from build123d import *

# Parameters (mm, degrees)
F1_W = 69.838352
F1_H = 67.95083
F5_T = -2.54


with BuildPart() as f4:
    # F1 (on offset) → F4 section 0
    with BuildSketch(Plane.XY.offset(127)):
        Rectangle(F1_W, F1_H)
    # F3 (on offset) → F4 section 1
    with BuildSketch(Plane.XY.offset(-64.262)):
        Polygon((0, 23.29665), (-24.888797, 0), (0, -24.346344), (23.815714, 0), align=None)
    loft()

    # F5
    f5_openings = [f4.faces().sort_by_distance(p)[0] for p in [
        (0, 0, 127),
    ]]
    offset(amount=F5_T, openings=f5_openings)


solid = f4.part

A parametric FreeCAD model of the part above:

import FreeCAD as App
import Part
import Sketcher
from FreeCAD import Vector
Q = App.Units.Quantity


def faces_at(feature, points):
    """Names of the faces that lie closest to the given points."""
    faces = feature.Shape.Faces
    near = lambda p: min(range(len(faces)), key=lambda i: faces[i].distToShape(Part.Vertex(*p))[0])
    return sorted({f"Face{near(p) + 1}" for p in points})


def add_polygon(sketch, points):
    """Adds a closed chain of lines whose ends are joined by coincident constraints."""
    first, n = sketch.GeometryCount, len(points)
    for a, b in zip(points, points[1:] + points[:1]):
        sketch.addGeometry(Part.LineSegment(App.Vector(*a, 0), App.Vector(*b, 0)), False)
    for i in range(n):
        sketch.addConstraint(Sketcher.Constraint("Coincident", first + i, 2, first + (i + 1) % n, 1))

doc = App.newDocument("Part")
body = doc.addObject("PartDesign::Body", "Body")

# Sketch on XY plane
sketch1 = doc.addObject("Sketcher::SketchObject", "Sketch")
body.addObject(sketch1)
sketch1.AttachmentSupport = (doc.XY_Plane, [""])
sketch1.MapMode = "FlatFace"
sketch1.AttachmentOffset = App.Placement(Vector(0, 0, 5 * 25.4), App.Rotation())
add_polygon(sketch1, [(-34.919176, 33.975415), (-34.919176, -33.975415), (34.919176, -33.975415), (34.919176, 33.975415)])  # lines 0-3
sketch1.addConstraint([
    Sketcher.Constraint("Vertical", 0),
    Sketcher.Constraint("Horizontal", 1),
    Sketcher.Constraint("Vertical", 2),
    Sketcher.Constraint("Horizontal", 3),
    Sketcher.Constraint("Symmetric", 0, 2, 2, 2, -1, 1),
    Sketcher.Constraint("DistanceX", 1, 1, 1, 2, Q("69.838352 mm")),
    Sketcher.Constraint("DistanceY", 0, 2, 0, 1, Q("67.95083 mm")),
])

# Sketch on XY plane
sketch2 = doc.addObject("Sketcher::SketchObject", "Sketch001")
body.addObject(sketch2)
sketch2.AttachmentSupport = (doc.XY_Plane, [""])
sketch2.MapMode = "FlatFace"
sketch2.AttachmentOffset = App.Placement(Vector(0, 0, -2.53 * 25.4), App.Rotation())
add_polygon(sketch2, [(0, 23.29665), (-24.888797, 0), (0, -24.346344), (23.815714, 0)])  # lines 0-3
sketch2.addConstraint([
    Sketcher.Constraint("PointOnObject", 0, 2, -1),
    Sketcher.Constraint("PointOnObject", 1, 2, -2),
    Sketcher.Constraint("PointOnObject", 2, 2, -1),
    Sketcher.Constraint("PointOnObject", 3, 2, -2),
    Sketcher.Constraint("Perpendicular", 1, 2),
    Sketcher.Constraint("Perpendicular", 2, 3),
    Sketcher.Constraint("Distance", 0, Q("34.090851 mm")),
    Sketcher.Constraint("DistanceY", -1, 1, 3, 2, Q("23.29665 mm")),
])

additiveloft = doc.addObject("PartDesign::AdditiveLoft", "AdditiveLoft")
body.addObject(additiveloft)
additiveloft.Profile = sketch1
additiveloft.Sections = [sketch2]
doc.recompute()

thickness = doc.addObject("PartDesign::Thickness", "Thickness")
body.addObject(thickness)
thickness.Base = (additiveloft, faces_at(additiveloft, [(0, 0, 127)]))
thickness.Value = Q("0.1 in")
thickness.Reversed = True
thickness.Join = "Arc"

doc.recompute()
